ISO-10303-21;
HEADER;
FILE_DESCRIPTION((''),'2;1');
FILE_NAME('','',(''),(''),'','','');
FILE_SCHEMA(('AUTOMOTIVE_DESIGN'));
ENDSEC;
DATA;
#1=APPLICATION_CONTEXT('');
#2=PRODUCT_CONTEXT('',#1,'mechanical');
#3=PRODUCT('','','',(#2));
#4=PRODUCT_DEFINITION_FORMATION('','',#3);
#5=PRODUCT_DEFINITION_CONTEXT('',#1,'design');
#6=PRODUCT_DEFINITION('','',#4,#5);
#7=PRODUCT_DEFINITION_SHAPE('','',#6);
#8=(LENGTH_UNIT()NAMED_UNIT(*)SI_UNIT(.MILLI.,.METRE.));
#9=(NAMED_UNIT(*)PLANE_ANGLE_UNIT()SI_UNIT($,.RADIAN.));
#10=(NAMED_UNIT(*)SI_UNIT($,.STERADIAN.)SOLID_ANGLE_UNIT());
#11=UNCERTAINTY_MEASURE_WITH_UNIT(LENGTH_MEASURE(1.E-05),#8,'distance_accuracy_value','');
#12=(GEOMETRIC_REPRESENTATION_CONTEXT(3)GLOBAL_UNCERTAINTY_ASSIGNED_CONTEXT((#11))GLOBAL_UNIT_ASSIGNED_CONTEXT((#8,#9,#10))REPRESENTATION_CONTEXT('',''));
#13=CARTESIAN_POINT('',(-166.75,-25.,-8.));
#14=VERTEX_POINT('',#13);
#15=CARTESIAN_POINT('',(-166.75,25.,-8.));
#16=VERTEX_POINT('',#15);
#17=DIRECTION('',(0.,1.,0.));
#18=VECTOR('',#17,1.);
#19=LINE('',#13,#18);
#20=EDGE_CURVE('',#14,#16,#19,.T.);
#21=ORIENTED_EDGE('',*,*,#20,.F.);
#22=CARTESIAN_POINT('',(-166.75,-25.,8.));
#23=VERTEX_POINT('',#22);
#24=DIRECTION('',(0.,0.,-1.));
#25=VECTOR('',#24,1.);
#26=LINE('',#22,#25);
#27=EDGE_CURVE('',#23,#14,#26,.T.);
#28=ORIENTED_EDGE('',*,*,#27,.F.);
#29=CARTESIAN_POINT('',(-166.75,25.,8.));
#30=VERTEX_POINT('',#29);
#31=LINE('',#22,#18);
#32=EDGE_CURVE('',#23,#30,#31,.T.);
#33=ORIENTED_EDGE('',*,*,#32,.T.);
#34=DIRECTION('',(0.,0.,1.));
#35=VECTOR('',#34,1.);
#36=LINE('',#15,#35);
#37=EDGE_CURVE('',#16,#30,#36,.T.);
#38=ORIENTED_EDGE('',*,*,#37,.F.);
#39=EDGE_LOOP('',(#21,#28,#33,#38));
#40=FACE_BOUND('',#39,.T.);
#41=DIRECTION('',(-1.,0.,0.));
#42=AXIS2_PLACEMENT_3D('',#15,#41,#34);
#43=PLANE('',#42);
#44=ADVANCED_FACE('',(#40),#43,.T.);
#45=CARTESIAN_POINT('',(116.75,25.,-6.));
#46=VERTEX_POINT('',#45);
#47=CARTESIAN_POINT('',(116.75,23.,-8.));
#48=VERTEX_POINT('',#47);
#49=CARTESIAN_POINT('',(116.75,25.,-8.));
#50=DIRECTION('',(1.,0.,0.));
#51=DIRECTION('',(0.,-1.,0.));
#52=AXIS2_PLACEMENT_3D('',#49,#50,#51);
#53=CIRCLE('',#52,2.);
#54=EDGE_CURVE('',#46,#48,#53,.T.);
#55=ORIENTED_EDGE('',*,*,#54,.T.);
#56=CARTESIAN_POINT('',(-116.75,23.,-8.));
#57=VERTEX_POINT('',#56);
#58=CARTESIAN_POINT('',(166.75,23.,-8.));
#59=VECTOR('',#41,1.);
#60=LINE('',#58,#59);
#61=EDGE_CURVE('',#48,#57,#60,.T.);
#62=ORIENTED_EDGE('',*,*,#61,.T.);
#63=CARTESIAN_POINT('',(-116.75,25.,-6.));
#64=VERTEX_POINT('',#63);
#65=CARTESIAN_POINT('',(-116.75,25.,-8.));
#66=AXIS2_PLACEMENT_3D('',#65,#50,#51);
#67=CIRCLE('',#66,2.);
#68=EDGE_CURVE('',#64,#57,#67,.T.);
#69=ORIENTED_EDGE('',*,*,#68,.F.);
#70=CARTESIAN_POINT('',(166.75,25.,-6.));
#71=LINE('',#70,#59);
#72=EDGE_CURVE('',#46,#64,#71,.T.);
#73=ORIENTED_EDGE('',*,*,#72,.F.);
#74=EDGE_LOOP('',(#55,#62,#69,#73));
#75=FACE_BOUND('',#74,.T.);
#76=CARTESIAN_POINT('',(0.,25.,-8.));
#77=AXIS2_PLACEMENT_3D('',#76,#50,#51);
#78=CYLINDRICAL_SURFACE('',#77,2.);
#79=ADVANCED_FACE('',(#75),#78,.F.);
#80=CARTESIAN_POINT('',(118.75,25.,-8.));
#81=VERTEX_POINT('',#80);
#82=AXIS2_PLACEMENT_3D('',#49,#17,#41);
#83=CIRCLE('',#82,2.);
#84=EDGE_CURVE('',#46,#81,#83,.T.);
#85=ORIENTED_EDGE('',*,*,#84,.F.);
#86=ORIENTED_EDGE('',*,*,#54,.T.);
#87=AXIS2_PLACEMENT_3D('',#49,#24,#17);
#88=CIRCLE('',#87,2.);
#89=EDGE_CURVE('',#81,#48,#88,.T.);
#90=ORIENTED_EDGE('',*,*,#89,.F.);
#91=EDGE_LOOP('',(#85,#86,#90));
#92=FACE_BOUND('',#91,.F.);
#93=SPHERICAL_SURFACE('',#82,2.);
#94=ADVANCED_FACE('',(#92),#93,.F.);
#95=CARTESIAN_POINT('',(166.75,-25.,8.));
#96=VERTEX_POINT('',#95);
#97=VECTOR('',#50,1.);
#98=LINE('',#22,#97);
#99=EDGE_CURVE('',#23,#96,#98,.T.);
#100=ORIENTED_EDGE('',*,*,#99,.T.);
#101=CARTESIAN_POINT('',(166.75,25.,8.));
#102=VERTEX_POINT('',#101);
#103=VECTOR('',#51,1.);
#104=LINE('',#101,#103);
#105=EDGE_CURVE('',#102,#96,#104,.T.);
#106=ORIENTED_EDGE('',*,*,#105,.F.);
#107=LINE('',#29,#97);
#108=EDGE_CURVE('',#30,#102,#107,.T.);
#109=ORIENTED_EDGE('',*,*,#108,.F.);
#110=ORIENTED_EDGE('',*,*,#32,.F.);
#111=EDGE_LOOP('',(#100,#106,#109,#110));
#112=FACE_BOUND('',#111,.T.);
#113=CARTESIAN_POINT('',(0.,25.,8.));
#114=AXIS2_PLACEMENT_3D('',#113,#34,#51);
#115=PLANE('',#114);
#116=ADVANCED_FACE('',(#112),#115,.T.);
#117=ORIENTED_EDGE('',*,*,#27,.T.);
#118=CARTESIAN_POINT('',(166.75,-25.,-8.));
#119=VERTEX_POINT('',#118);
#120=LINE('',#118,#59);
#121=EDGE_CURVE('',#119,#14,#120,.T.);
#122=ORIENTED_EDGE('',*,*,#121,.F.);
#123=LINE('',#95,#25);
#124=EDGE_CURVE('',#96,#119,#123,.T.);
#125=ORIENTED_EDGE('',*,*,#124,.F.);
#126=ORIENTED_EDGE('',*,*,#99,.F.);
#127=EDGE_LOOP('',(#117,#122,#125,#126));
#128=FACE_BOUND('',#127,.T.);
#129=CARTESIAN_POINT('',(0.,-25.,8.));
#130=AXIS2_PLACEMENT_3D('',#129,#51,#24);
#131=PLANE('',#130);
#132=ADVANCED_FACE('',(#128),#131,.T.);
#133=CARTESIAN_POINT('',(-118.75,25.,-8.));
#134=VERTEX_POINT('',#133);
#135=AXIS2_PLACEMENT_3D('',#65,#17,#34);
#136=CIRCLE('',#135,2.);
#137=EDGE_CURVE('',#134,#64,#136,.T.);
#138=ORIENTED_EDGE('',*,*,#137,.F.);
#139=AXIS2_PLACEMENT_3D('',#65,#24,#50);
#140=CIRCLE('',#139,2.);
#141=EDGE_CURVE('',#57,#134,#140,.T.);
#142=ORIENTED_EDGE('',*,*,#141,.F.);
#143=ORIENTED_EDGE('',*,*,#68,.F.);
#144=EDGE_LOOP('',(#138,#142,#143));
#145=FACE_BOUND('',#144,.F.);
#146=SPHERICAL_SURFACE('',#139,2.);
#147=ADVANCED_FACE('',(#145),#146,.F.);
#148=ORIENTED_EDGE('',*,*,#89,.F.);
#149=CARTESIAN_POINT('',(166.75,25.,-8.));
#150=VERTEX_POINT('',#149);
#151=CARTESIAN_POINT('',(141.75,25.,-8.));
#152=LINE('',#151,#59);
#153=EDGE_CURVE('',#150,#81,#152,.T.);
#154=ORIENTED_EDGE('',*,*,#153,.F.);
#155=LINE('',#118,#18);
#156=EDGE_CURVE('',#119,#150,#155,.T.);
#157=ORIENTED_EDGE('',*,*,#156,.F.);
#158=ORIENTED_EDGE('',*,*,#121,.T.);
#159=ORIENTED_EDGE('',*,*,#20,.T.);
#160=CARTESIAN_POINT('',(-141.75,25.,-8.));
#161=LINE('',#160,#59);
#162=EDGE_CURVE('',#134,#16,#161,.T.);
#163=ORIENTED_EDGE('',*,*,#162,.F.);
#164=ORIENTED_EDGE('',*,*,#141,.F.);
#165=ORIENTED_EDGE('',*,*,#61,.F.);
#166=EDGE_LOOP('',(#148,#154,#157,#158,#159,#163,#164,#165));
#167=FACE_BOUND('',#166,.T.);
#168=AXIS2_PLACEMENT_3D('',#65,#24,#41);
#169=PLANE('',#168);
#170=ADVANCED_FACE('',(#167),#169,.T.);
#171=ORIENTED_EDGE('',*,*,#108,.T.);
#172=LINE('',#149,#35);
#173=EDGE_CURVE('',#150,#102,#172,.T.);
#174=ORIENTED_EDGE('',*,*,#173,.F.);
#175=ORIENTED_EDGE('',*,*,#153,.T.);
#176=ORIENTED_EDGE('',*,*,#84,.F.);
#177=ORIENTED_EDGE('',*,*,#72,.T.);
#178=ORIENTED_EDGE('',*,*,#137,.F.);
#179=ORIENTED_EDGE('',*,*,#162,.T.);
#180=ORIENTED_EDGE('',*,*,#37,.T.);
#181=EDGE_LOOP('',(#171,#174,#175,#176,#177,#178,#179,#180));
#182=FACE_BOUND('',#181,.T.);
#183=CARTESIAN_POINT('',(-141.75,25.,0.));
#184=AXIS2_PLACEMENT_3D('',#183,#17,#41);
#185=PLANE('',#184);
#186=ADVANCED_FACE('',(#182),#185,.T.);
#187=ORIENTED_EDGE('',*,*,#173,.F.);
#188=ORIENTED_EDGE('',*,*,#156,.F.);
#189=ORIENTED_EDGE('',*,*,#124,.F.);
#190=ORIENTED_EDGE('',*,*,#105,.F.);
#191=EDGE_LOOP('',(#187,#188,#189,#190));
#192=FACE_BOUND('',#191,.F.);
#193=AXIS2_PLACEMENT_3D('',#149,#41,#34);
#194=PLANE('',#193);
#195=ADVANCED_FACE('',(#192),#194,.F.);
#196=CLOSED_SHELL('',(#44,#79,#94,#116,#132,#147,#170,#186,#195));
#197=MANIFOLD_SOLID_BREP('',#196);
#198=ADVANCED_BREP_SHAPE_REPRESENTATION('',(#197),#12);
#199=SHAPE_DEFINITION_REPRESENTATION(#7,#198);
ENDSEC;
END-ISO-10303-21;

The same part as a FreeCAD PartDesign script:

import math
import FreeCAD as App
import Part
import Sketcher
from FreeCAD import Vector
Q = App.Units.Quantity

doc = App.newDocument("Part")
body = doc.addObject("PartDesign::Body", "Body")

sketch1 = doc.addObject("Sketcher::SketchObject", "Sketch")
body.addObject(sketch1)
sketch1.AttachmentSupport = (doc.YZ_Plane, [""])
sketch1.MapMode = "FlatFace"
sketch1.addGeometry([
    Part.LineSegment(Vector(25, -6, 0), Vector(25, 8, 0)),
    Part.LineSegment(Vector(25, 8, 0), Vector(-25, 8, 0)),
    Part.LineSegment(Vector(-25, 8, 0), Vector(-25, -8, 0)),
    Part.LineSegment(Vector(-25, -8, 0), Vector(23, -8, 0)),
    Part.ArcOfCircle(Part.Circle(Vector(25, -8, 0), Vector(0, 0, 1), 2), math.radians(90), math.radians(180)),
], False)
sketch1.addConstraint([
    Sketcher.Constraint("Coincident", 0, 2, 1, 1),
    Sketcher.Constraint("Coincident", 1, 2, 2, 1),
    Sketcher.Constraint("Coincident", 2, 2, 3, 1),
    Sketcher.Constraint("Coincident", 3, 2, 4, 2),
    Sketcher.Constraint("Coincident", 4, 1, 0, 1),
    Sketcher.Constraint("Vertical", 0),
    Sketcher.Constraint("Horizontal", 1),
    Sketcher.Constraint("Vertical", 2),
    Sketcher.Constraint("Horizontal", 3),
    Sketcher.Constraint("Symmetric", 0, 2, 2, 2, -1, 1),
    Sketcher.Constraint("Horizontal", 4, 3, 2, 2),
    Sketcher.Constraint("Vertical", 4, 3, 0, 2),
    Sketcher.Constraint("Radius", 4, Q("2 mm")),
    Sketcher.Constraint("DistanceX", 1, 2, 1, 1, Q("50 mm")),
    Sketcher.Constraint("DistanceY", 0, 1, 0, 2, Q("14 mm")),
])
pad1 = doc.addObject("PartDesign::Pad", "Pad")
body.addObject(pad1)
pad1.Profile = sketch1
pad1.Length = 333.5
pad1.Midplane = True

sketch2 = doc.addObject("Sketcher::SketchObject", "Sketch001")
body.addObject(sketch2)
sketch2.AttachmentSupport = (doc.XZ_Plane, [""])
sketch2.MapMode = "FlatFace"
sketch2.AttachmentOffset = App.Placement(Vector(0, 0, -25), App.Rotation())
sketch2.addGeometry([
    Part.LineSegment(Vector(167, 8, 0), Vector(167, -8, 0)),
    Part.LineSegment(Vector(167, -8, 0), Vector(117, -8, 0)),
    Part.LineSegment(Vector(117, -8, 0), Vector(117, 8, 0)),
    Part.LineSegment(Vector(117, 8, 0), Vector(167, 8, 0)),
], False)
sketch2.addConstraint([
    Sketcher.Constraint("Coincident", 0, 2, 1, 1),
    Sketcher.Constraint("Coincident", 1, 2, 2, 1),
    Sketcher.Constraint("Coincident", 2, 2, 3, 1),
    Sketcher.Constraint("Coincident", 3, 2, 0, 1),
    Sketcher.Constraint("Vertical", 0),
    Sketcher.Constraint("Horizontal", 1),
    Sketcher.Constraint("Vertical", 2),
    Sketcher.Constraint("Horizontal", 3),
    Sketcher.Constraint("DistanceX", 1, 2, 1, 1, Q("50 mm")),
    Sketcher.Constraint("DistanceY", 0, 2, 0, 1, Q("16 mm")),
    Sketcher.Constraint("DistanceY", 0, 2, -1, 1, Q("8 mm")),
    Sketcher.Constraint("DistanceX", -1, 1, 0, 2, Q("166.75 mm")),
])
pad2 = doc.addObject("PartDesign::Pad", "Pad001")
body.addObject(pad2)
pad2.Profile = sketch2
pad2.Length = 2

sketch3 = doc.addObject("Sketcher::SketchObject", "Sketch002")
body.addObject(sketch3)
sketch3.AttachmentSupport = (doc.XZ_Plane, [""])
sketch3.MapMode = "FlatFace"
sketch3.AttachmentOffset = App.Placement(Vector(0, 0, -25), App.Rotation())
sketch3.addGeometry([
    Part.LineSegment(Vector(-117, 8, 0), Vector(-117, -8, 0)),
    Part.LineSegment(Vector(-117, -8, 0), Vector(-167, -8, 0)),
    Part.LineSegment(Vector(-167, -8, 0), Vector(-167, 8, 0)),
    Part.LineSegment(Vector(-167, 8, 0), Vector(-117, 8, 0)),
], False)
sketch3.addConstraint([
    Sketcher.Constraint("Coincident", 0, 2, 1, 1),
    Sketcher.Constraint("Coincident", 1, 2, 2, 1),
    Sketcher.Constraint("Coincident", 2, 2, 3, 1),
    Sketcher.Constraint("Coincident", 3, 2, 0, 1),
    Sketcher.Constraint("Vertical", 0),
    Sketcher.Constraint("Horizontal", 1),
    Sketcher.Constraint("Vertical", 2),
    Sketcher.Constraint("Horizontal", 3),
    Sketcher.Constraint("DistanceX", 1, 2, 1, 1, Q("50 mm")),
    Sketcher.Constraint("DistanceY", 0, 2, 0, 1, Q("16 mm")),
    Sketcher.Constraint("DistanceY", 0, 2, -1, 1, Q("8 mm")),
    Sketcher.Constraint("DistanceX", 0, 2, -1, 1, Q("116.75 mm")),
])
pad3 = doc.addObject("PartDesign::Pad", "Pad002")
body.addObject(pad3)
pad3.Profile = sketch3
pad3.Length = 2

sketch4 = doc.addObject("Sketcher::SketchObject", "Sketch003")
body.addObject(sketch4)
sketch4.AttachmentSupport = (doc.XY_Plane, [""])
sketch4.MapMode = "FlatFace"
sketch4.AttachmentOffset = App.Placement(Vector(0, 0, -8), App.Rotation())
sketch4.addGeometry([
    Part.ArcOfCircle(Part.Circle(Vector(116.8, 25, 0), Vector(0, 0, 1), 2), math.radians(90), math.radians(270)),
    Part.LineSegment(Vector(116.8, 27, 0), Vector(116.8, 23, 0)),
], False)
sketch4.addGeometry(Part.LineSegment(Vector(116.8, 23, 0), Vector(116.8, 27, 0)), True)
sketch4.addConstraint([
    Sketcher.Constraint("Coincident", 0, 1, 1, 1),
    Sketcher.Constraint("Coincident", 1, 2, 0, 2),
    Sketcher.Constraint("Vertical", 1),
    Sketcher.Constraint("Vertical", 2),
    Sketcher.Constraint("Coincident", 2, 1, 1, 2),
    Sketcher.Constraint("Equal", 1, 2),
    Sketcher.Constraint("Radius", 0, Q("2 mm")),
    Sketcher.Constraint("DistanceY", -1, 1, 0, 3, Q("25 mm")),
    Sketcher.Constraint("DistanceX", -1, 1, 0, 3, Q("116.75 mm")),
    Sketcher.Constraint("DistanceX", -1, 1, 0, 1, Q("116.75 mm")),
])
groove = doc.addObject("PartDesign::Groove", "Groove")
body.addObject(groove)
groove.Profile = sketch4
groove.ReferenceAxis = (sketch4, ["Axis0"])
groove.Angle = 360

sketch5 = doc.addObject("Sketcher::SketchObject", "Sketch004")
body.addObject(sketch5)
sketch5.AttachmentSupport = (doc.XZ_Plane, [""])
sketch5.MapMode = "FlatFace"
sketch5.AttachmentOffset = App.Placement(Vector(0, 0, -25), App.Rotation())
sketch5.addGeometry([
    Part.ArcOfCircle(Part.Circle(Vector(-116.8, -8, 0), Vector(0, 0, 1), 2), math.radians(-90), math.radians(90)),
    Part.LineSegment(Vector(-116.8, -10, 0), Vector(-116.8, -6, 0)),
], False)
sketch5.addGeometry(Part.LineSegment(Vector(-116.8, -6, 0), Vector(-116.8, -10, 0)), True)
sketch5.addConstraint([
    Sketcher.Constraint("Coincident", 0, 1, 1, 1),
    Sketcher.Constraint("Coincident", 1, 2, 0, 2),
    Sketcher.Constraint("Vertical", 1),
    Sketcher.Constraint("Vertical", 2),
    Sketcher.Constraint("Coincident", 2, 1, 1, 2),
    Sketcher.Constraint("Equal", 1, 2),
    Sketcher.Constraint("Radius", 0, Q("2 mm")),
    Sketcher.Constraint("DistanceY", 0, 3, -1, 1, Q("8 mm")),
    Sketcher.Constraint("DistanceX", 0, 3, -1, 1, Q("116.75 mm")),
    Sketcher.Constraint("DistanceX", 0, 1, -1, 1, Q("116.75 mm")),
])
groove2 = doc.addObject("PartDesign::Groove", "Groove001")
body.addObject(groove2)
groove2.Profile = sketch5
groove2.ReferenceAxis = (sketch5, ["Axis0"])
groove2.Angle = 360

doc.recompute()
